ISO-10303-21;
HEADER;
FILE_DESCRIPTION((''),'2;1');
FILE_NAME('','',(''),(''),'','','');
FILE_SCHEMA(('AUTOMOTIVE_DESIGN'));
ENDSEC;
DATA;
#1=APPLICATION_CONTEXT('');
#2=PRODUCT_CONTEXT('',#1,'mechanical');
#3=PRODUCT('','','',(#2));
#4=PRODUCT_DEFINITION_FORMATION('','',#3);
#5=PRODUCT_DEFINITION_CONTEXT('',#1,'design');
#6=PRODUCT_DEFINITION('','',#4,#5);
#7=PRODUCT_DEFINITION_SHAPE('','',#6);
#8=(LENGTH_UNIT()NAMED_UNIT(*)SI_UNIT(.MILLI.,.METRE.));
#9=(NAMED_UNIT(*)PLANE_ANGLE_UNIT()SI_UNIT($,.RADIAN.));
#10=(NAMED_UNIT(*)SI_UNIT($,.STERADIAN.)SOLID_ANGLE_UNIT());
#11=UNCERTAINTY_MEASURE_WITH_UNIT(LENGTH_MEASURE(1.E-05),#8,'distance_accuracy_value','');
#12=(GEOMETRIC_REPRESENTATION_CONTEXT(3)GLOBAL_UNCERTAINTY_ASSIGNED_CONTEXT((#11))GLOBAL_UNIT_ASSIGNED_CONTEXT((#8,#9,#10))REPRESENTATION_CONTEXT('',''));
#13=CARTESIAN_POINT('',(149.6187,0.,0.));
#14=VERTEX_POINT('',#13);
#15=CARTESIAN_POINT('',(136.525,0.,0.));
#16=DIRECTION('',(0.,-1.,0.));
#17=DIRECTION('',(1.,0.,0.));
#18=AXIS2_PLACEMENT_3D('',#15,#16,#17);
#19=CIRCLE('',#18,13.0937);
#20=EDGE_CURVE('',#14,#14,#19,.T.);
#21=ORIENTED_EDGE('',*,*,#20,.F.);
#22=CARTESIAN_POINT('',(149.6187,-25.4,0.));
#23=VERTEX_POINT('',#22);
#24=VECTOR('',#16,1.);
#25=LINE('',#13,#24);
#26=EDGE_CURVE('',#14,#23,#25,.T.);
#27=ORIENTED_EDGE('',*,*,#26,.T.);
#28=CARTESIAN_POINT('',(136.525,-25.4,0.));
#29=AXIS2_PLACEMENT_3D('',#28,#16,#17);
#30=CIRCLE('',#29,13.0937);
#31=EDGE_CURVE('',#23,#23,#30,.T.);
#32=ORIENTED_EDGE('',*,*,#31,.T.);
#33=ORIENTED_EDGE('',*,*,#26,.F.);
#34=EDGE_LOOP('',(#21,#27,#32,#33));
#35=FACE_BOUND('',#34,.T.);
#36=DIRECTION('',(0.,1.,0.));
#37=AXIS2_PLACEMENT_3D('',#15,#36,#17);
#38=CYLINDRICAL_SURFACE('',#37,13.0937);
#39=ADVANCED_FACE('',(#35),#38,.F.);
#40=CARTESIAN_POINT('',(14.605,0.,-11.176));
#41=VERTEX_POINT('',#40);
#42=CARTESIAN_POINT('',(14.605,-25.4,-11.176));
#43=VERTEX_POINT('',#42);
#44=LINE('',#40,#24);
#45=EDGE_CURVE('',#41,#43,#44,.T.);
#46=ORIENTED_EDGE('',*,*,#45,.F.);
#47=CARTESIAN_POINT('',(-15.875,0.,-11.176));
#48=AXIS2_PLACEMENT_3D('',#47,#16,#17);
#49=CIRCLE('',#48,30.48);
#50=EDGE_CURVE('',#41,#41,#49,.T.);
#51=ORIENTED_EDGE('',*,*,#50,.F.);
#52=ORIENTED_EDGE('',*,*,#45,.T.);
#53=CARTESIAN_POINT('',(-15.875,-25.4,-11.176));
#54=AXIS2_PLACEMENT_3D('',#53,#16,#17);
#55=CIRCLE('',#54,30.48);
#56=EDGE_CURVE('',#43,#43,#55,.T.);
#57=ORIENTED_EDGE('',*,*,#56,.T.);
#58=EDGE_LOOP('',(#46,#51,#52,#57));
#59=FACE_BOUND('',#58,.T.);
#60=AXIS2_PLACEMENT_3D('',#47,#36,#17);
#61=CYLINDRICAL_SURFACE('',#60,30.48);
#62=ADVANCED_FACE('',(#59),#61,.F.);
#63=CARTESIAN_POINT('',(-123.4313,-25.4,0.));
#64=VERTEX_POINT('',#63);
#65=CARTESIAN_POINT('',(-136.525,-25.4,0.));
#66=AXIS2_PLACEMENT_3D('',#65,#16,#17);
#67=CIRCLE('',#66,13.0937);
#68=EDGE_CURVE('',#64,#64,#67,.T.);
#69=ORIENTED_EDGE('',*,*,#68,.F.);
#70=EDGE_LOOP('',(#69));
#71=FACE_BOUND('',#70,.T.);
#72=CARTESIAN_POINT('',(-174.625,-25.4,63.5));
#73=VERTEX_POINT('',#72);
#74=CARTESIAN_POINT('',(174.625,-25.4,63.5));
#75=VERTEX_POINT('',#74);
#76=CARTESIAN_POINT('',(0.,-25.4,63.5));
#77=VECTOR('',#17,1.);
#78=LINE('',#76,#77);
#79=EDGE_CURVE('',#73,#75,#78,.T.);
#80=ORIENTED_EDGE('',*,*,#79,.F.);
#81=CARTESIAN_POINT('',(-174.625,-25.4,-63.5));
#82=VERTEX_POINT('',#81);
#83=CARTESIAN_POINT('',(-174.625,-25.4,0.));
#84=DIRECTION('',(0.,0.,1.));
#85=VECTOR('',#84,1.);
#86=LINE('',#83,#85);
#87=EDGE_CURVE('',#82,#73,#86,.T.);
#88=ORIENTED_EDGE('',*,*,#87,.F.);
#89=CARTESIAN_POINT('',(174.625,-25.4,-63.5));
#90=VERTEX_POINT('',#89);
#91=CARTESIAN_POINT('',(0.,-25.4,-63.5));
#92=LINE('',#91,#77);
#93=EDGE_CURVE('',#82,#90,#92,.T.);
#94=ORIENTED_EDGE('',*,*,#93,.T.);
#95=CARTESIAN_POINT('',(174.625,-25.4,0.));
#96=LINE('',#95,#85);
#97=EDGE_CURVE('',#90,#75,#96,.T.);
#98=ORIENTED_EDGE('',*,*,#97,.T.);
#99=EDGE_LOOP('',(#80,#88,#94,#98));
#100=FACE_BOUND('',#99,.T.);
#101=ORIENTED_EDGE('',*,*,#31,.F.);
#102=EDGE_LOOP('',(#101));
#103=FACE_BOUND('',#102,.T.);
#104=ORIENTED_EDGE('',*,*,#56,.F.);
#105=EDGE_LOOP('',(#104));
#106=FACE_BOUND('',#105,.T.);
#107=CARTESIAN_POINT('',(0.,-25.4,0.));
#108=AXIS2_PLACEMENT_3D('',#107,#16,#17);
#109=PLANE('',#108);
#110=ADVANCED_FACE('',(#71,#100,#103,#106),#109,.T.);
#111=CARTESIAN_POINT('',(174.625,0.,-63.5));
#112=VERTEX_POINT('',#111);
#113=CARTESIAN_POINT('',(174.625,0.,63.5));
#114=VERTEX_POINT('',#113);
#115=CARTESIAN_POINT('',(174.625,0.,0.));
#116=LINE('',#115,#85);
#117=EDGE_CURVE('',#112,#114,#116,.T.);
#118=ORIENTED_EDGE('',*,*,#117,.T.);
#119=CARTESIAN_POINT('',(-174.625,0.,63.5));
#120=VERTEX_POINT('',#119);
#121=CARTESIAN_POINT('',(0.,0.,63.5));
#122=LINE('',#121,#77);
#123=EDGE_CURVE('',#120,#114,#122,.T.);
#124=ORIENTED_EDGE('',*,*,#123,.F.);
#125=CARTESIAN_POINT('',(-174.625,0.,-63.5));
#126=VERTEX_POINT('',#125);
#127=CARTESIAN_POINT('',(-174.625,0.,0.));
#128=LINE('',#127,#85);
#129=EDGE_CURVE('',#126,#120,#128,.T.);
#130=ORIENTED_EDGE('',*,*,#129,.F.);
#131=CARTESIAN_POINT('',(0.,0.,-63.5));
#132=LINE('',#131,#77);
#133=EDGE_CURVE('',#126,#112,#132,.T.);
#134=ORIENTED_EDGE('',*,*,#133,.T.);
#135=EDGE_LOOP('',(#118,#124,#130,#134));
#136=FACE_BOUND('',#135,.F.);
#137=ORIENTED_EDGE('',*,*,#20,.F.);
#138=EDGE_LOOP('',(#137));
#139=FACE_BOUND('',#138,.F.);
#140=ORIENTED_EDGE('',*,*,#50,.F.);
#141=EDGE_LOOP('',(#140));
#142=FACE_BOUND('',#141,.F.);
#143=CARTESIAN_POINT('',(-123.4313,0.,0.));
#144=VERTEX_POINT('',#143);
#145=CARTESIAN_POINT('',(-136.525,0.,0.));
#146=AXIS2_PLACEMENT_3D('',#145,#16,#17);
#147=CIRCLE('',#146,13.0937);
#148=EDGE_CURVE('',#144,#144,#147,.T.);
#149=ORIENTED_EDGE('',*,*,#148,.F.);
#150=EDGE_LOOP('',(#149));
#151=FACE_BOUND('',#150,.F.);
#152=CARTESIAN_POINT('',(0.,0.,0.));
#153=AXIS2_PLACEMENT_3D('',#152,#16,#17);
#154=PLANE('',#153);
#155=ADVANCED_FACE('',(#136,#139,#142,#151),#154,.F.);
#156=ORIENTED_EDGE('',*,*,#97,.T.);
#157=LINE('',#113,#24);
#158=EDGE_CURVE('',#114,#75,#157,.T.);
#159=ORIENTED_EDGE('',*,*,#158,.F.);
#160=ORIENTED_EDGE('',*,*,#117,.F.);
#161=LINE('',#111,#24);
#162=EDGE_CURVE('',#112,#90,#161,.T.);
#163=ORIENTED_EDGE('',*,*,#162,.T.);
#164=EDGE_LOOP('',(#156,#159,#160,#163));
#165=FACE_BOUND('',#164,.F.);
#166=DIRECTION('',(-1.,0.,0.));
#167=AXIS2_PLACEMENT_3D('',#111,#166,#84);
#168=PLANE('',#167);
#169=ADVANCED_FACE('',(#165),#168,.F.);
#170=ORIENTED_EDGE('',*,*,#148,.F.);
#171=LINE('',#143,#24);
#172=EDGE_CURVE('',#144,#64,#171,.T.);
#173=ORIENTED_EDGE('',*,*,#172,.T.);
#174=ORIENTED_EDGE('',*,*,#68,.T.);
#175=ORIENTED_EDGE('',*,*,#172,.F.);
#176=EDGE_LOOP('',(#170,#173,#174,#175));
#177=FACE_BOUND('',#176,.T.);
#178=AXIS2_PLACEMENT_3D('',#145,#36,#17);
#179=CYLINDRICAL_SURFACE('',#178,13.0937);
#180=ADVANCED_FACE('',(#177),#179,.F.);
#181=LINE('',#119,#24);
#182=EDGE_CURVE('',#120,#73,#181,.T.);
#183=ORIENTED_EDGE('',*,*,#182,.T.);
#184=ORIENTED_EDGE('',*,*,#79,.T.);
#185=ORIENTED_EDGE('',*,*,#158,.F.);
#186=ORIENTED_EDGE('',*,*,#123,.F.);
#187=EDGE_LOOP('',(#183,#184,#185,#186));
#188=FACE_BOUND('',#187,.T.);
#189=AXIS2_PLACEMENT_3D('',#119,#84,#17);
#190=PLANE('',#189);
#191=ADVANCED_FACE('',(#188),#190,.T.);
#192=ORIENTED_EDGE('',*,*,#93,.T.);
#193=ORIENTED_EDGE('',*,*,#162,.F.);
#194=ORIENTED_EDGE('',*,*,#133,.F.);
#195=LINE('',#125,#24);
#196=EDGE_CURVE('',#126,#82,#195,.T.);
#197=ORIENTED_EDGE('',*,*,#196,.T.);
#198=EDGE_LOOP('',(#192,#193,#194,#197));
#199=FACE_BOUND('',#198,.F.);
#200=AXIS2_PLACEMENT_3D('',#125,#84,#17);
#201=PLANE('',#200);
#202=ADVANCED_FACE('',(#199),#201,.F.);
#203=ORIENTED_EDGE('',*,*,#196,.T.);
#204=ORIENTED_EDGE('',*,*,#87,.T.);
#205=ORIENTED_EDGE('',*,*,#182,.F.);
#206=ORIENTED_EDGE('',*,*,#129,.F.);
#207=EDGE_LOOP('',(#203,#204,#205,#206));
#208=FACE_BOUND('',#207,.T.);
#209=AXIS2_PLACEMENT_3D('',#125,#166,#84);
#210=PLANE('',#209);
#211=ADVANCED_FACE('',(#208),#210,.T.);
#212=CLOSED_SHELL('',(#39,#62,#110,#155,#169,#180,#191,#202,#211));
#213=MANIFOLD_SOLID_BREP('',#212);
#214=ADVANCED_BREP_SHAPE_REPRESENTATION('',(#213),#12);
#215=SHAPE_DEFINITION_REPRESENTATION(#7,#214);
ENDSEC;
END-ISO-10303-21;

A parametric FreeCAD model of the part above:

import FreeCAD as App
import Part
import Sketcher

V = App.Vector
Q = App.Units.Quantity

doc = App.newDocument("Part")
body = doc.addObject("PartDesign::Body", "Body")

# Sketch on XZ plane
sketch1 = body.newObject("Sketcher::SketchObject", "Sketch")
sketch1.AttachmentSupport = (doc.getObject("XZ_Plane"), [""])
sketch1.MapMode = "FlatFace"
sketch1.addGeometry(Part.LineSegment(V(-174.625, 63.5, 0), V(-174.625, -63.5, 0)), False)
sketch1.addGeometry(Part.LineSegment(V(-174.625, -63.5, 0), V(174.625, -63.5, 0)), False)
sketch1.addGeometry(Part.LineSegment(V(174.625, -63.5, 0), V(174.625, 63.5, 0)), False)
sketch1.addGeometry(Part.LineSegment(V(174.625, 63.5, 0), V(-174.625, 63.5, 0)), False)
sketch1.addGeometry(Part.Circle(V(-136.525, 0, 0), V(0, 0, 1), 13.0937), False)
sketch1.addGeometry(Part.Circle(V(-15.875, -11.176, 0), V(0, 0, 1), 30.48), False)
sketch1.addGeometry(Part.Circle(V(136.525, 0, 0), V(0, 0, 1), 13.0937), False)
sketch1.addConstraint(Sketcher.Constraint("Coincident", 0, 2, 1, 1))
sketch1.addConstraint(Sketcher.Constraint("Coincident", 1, 2, 2, 1))
sketch1.addConstraint(Sketcher.Constraint("Coincident", 2, 2, 3, 1))
sketch1.addConstraint(Sketcher.Constraint("Coincident", 3, 2, 0, 1))
sketch1.addConstraint(Sketcher.Constraint("Vertical", 0))
sketch1.addConstraint(Sketcher.Constraint("Horizontal", 1))
sketch1.addConstraint(Sketcher.Constraint("Vertical", 2))
sketch1.addConstraint(Sketcher.Constraint("Horizontal", 3))
sketch1.addConstraint(Sketcher.Constraint("Equal", 4, 6))
sketch1.addConstraint(Sketcher.Constraint("Symmetric", 4, 3, 6, 3, -1, 1))
sketch1.addConstraint(Sketcher.Constraint("Symmetric", 0, 2, 2, 2, -1, 1))
sketch1.addConstraint(Sketcher.Constraint("PointOnObject", 4, 3, -1))
sketch1.addConstraint(Sketcher.Constraint("Diameter", 5, Q("2.4 in")))
sketch1.addConstraint(Sketcher.Constraint("DistanceY", 0, 2, 0, 1, Q("5 in")))
sketch1.addConstraint(Sketcher.Constraint("Diameter", 4, Q("1.031 in")))
sketch1.addConstraint(Sketcher.Constraint("DistanceX", 5, 3, 6, 3, Q("6 in")))
sketch1.addConstraint(Sketcher.Constraint("DistanceX", 1, 1, 1, 2, Q("13.75 in")))
sketch1.addConstraint(Sketcher.Constraint("DistanceX", 0, 2, 4, 3, Q("1.5 in")))
sketch1.addConstraint(Sketcher.Constraint("DistanceY", 5, 3, -1, 1, Q("0.44 in")))
pad1 = body.newObject("PartDesign::Pad", "Pad")
pad1.Profile = sketch1
pad1.Length = Q("1 in")

doc.recompute()
